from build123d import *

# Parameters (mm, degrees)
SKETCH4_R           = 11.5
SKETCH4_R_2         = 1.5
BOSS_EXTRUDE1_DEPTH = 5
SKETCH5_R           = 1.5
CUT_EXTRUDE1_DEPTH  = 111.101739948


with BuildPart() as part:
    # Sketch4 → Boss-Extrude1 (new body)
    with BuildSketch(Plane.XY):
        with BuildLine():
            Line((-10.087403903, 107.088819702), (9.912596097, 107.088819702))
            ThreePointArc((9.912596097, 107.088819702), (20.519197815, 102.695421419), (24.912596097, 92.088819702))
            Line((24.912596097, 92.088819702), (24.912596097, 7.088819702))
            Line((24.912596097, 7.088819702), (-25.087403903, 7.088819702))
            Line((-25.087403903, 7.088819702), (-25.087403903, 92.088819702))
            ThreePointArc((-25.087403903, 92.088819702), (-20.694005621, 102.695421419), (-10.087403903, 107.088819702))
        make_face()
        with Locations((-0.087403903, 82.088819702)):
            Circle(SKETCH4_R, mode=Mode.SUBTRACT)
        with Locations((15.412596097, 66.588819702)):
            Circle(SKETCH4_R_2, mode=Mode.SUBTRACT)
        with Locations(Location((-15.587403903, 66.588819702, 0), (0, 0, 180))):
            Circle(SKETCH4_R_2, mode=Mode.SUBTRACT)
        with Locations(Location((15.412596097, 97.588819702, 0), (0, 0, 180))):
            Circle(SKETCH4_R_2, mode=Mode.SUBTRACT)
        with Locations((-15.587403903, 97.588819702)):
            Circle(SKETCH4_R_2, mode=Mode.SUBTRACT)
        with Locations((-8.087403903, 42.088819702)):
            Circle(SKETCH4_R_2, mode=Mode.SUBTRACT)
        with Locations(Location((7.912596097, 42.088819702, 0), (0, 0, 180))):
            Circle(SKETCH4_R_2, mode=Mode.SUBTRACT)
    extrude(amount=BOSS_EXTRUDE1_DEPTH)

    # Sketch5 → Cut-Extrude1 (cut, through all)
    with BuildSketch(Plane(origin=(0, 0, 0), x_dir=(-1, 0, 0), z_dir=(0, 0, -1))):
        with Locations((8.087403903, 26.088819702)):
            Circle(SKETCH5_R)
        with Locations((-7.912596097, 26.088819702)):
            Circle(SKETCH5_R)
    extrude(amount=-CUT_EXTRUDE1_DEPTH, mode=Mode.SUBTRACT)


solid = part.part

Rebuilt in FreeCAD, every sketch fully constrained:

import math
import FreeCAD as App
import Part
import Sketcher

V = App.Vector

doc = App.newDocument("Part")
body = doc.addObject("PartDesign::Body", "Body")

sketch1 = body.newObject("Sketcher::SketchObject", "Sketch")
sketch1.AttachmentSupport = (doc.getObject("XY_Plane"), [""])
sketch1.MapMode = "FlatFace"
sketch1.addGeometry([
    Part.LineSegment(V(9.9, 107.1, 0), V(-10.1, 107.1, 0)),
    Part.ArcOfCircle(Part.Circle(V(-10.1, 92.1, 0), V(0, 0, 1), 15), math.radians(90), math.radians(180)),
    Part.LineSegment(V(-25.1, 92.1, 0), V(-25.1, 7.1, 0)),
    Part.LineSegment(V(-25.1, 7.1, 0), V(24.9, 7.1, 0)),
    Part.LineSegment(V(24.9, 7.1, 0), V(24.9, 92.1, 0)),
    Part.ArcOfCircle(Part.Circle(V(9.9, 92.1, 0), V(0, 0, 1), 15), math.radians(0), math.radians(90)),
    Part.Circle(V(7.9, 42.1, 0), V(0, 0, 1), 1.5),
    Part.Circle(V(15.4, 66.6, 0), V(0, 0, 1), 1.5),
    Part.Circle(V(-8.1, 42.1, 0), V(0, 0, 1), 1.5),
    Part.Circle(V(-15.6, 66.6, 0), V(0, 0, 1), 1.5),
    Part.Circle(V(15.4, 97.6, 0), V(0, 0, 1), 1.5),
    Part.Circle(V(-0.1, 82.1, 0), V(0, 0, 1), 11.5),
    Part.Circle(V(-15.6, 97.6, 0), V(0, 0, 1), 1.5),
], False)
sketch1.addConstraint([
    Sketcher.Constraint("Tangent", 0, 2, 1, 1),
    Sketcher.Constraint("Tangent", 1, 2, 2, 1),
    Sketcher.Constraint("Coincident", 2, 2, 3, 1),
    Sketcher.Constraint("Coincident", 3, 2, 4, 1),
    Sketcher.Constraint("Tangent", 4, 2, 5, 1),
    Sketcher.Constraint("Tangent", 5, 2, 0, 1),
    Sketcher.Constraint("Horizontal", 0),
    Sketcher.Constraint("Vertical", 2),
    Sketcher.Constraint("Horizontal", 3),
    Sketcher.Constraint("Vertical", 4),
    Sketcher.Constraint("Equal", 1, 5),
    Sketcher.Constraint("Equal", 6, 7),
    Sketcher.Constraint("Equal", 7, 8),
    Sketcher.Constraint("Equal", 8, 9),
    Sketcher.Constraint("Equal", 9, 10),
    Sketcher.Constraint("Equal", 10, 12),
    Sketcher.Constraint("Horizontal", 6, 3, 8, 3),
    Sketcher.Constraint("Horizontal", 7, 3, 9, 3),
    Sketcher.Constraint("Horizontal", 10, 3, 12, 3),
    Sketcher.Constraint("Vertical", 7, 3, 10, 3),
    Sketcher.Constraint("Vertical", 9, 3, 12, 3),
    Sketcher.Constraint("Diameter", 6, 3.0),
    Sketcher.Constraint("Diameter", 11, 23.0),
    Sketcher.Constraint("Radius", 1, 15.0),
    Sketcher.Constraint("DistanceX", 0, 2, 0, 1, 20.0),
    Sketcher.Constraint("DistanceY", 2, 2, 2, 1, 85.0),
    Sketcher.Constraint("DistanceX", 6, 3, 5, 3, 2.0),
    Sketcher.Constraint("DistanceY", 6, 3, 5, 3, 50.0),
    Sketcher.Constraint("DistanceX", 8, 3, 6, 3, 16.0),
    Sketcher.Constraint("DistanceX", 9, 3, 7, 3, 31.0),
    Sketcher.Constraint("DistanceY", 7, 3, 10, 3, 31.0),
    Sketcher.Constraint("DistanceX", 1, 3, 11, 3, 10.0),
    Sketcher.Constraint("DistanceY", 11, 3, 1, 3, 10.0),
    Sketcher.Constraint("DistanceX", 6, 3, 7, 3, 7.5),
    Sketcher.Constraint("DistanceY", 6, 3, 7, 3, 24.5),
    Sketcher.Constraint("DistanceY", -1, 1, 1, 3, 92.08882),
    Sketcher.Constraint("DistanceX", 1, 3, -1, 1, 10.087404),
])
pad1 = body.newObject("PartDesign::Pad", "Pad")
pad1.Profile = sketch1
pad1.Length = 5

sketch2 = body.newObject("Sketcher::SketchObject", "Sketch001")
sketch2.AttachmentSupport = (doc.getObject("XY_Plane"), [""])
sketch2.MapMode = "FlatFace"
sketch2.addGeometry([
    Part.Circle(V(-8.1, 26.1, 0), V(0, 0, 1), 1.5),
    Part.Circle(V(7.9, 26.1, 0), V(0, 0, 1), 1.5),
], False)
sketch2.addConstraint([
    Sketcher.Constraint("Equal", 0, 1),
    Sketcher.Constraint("Horizontal", 0, 3, 1, 3),
    Sketcher.Constraint("Diameter", 0, 3.0),
    Sketcher.Constraint("DistanceX", 0, 3, 1, 3, 16.0),
    Sketcher.Constraint("DistanceY", -1, 1, 0, 3, 26.08882),
    Sketcher.Constraint("DistanceX", 0, 3, -1, 1, 8.087404),
])
pocket1 = body.newObject("PartDesign::Pocket", "Pocket")
pocket1.Profile = sketch2
pocket1.Type = "ThroughAll"
pocket1.Reversed = True

doc.recompute()
